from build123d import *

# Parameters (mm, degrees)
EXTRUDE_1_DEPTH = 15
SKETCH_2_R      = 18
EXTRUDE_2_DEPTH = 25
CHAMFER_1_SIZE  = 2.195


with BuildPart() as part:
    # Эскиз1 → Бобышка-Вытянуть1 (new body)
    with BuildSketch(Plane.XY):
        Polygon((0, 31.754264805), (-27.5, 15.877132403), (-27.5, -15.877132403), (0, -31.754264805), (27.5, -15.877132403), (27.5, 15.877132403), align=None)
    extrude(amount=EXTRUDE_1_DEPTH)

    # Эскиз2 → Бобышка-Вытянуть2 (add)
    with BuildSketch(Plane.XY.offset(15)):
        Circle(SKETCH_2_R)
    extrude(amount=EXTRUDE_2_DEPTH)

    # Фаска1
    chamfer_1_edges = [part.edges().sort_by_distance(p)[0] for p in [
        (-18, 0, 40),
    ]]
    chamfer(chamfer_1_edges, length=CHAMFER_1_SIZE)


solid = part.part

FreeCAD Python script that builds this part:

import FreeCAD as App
import Part
import Sketcher
from FreeCAD import Vector
Q = App.Units.Quantity


def edges_at(feature, points):
    """Names of the edges that pass closest to the given points."""
    edges = feature.Shape.Edges
    near = lambda p: min(range(len(edges)), key=lambda i: edges[i].distToShape(Part.Vertex(*p))[0])
    return sorted({f"Edge{near(p) + 1}" for p in points})


def add_polygon(sketch, points):
    """Adds a closed chain of lines whose ends are joined by coincident constraints."""
    first, n = sketch.GeometryCount, len(points)
    for a, b in zip(points, points[1:] + points[:1]):
        sketch.addGeometry(Part.LineSegment(App.Vector(*a, 0), App.Vector(*b, 0)), False)
    for i in range(n):
        sketch.addConstraint(Sketcher.Constraint("Coincident", first + i, 2, first + (i + 1) % n, 1))

doc = App.newDocument("Part")
body = doc.addObject("PartDesign::Body", "Body")

sketch1 = doc.addObject("Sketcher::SketchObject", "Sketch")
body.addObject(sketch1)
sketch1.AttachmentSupport = (doc.XY_Plane, [""])
sketch1.MapMode = "FlatFace"
add_polygon(sketch1, [(0, 32), (-28, 16), (-28, -16), (0, -32), (28, -16), (28, 16)])
sketch1.addConstraint([
    Sketcher.Constraint("Vertical", 1),
    Sketcher.Constraint("Vertical", 4),
    Sketcher.Constraint("Symmetric", 0, 2, 3, 2, -1, 1),
    Sketcher.Constraint("Symmetric", 2, 2, 5, 2, -1, 1),
    Sketcher.Constraint("PointOnObject", 2, 2, -2),
    Sketcher.Constraint("Parallel", 2, 5),
    Sketcher.Constraint("Horizontal", 1, 2, 3, 2),
    Sketcher.Constraint("Angle", 0, Q("-150 deg")),
    Sketcher.Constraint("DistanceX", 1, 2, 3, 2, 55.0),
    Sketcher.Constraint("DistanceY", 1, 2, 1, 1, 31.754265),
])
pad1 = doc.addObject("PartDesign::Pad", "Pad")
body.addObject(pad1)
pad1.Profile = sketch1
pad1.Length = 15

sketch2 = doc.addObject("Sketcher::SketchObject", "Sketch001")
body.addObject(sketch2)
sketch2.AttachmentSupport = (doc.XY_Plane, [""])
sketch2.MapMode = "FlatFace"
sketch2.AttachmentOffset = App.Placement(Vector(0, 0, 15), App.Rotation())
sketch2.addGeometry(Part.Circle(Vector(0, 0, 0), Vector(0, 0, 1), 18), False)
sketch2.addConstraint([
    Sketcher.Constraint("Coincident", 0, 3, -1, 1),
    Sketcher.Constraint("Diameter", 0, 36.0),
])
pad2 = doc.addObject("PartDesign::Pad", "Pad001")
body.addObject(pad2)
pad2.Profile = sketch2
pad2.Length = 25
doc.recompute()

chamfer = doc.addObject("PartDesign::Chamfer", "Chamfer")
body.addObject(chamfer)
chamfer.Base = (pad2, edges_at(pad2, [(-18, 0, 40)]))
chamfer.Size = 2.195

doc.recompute()
